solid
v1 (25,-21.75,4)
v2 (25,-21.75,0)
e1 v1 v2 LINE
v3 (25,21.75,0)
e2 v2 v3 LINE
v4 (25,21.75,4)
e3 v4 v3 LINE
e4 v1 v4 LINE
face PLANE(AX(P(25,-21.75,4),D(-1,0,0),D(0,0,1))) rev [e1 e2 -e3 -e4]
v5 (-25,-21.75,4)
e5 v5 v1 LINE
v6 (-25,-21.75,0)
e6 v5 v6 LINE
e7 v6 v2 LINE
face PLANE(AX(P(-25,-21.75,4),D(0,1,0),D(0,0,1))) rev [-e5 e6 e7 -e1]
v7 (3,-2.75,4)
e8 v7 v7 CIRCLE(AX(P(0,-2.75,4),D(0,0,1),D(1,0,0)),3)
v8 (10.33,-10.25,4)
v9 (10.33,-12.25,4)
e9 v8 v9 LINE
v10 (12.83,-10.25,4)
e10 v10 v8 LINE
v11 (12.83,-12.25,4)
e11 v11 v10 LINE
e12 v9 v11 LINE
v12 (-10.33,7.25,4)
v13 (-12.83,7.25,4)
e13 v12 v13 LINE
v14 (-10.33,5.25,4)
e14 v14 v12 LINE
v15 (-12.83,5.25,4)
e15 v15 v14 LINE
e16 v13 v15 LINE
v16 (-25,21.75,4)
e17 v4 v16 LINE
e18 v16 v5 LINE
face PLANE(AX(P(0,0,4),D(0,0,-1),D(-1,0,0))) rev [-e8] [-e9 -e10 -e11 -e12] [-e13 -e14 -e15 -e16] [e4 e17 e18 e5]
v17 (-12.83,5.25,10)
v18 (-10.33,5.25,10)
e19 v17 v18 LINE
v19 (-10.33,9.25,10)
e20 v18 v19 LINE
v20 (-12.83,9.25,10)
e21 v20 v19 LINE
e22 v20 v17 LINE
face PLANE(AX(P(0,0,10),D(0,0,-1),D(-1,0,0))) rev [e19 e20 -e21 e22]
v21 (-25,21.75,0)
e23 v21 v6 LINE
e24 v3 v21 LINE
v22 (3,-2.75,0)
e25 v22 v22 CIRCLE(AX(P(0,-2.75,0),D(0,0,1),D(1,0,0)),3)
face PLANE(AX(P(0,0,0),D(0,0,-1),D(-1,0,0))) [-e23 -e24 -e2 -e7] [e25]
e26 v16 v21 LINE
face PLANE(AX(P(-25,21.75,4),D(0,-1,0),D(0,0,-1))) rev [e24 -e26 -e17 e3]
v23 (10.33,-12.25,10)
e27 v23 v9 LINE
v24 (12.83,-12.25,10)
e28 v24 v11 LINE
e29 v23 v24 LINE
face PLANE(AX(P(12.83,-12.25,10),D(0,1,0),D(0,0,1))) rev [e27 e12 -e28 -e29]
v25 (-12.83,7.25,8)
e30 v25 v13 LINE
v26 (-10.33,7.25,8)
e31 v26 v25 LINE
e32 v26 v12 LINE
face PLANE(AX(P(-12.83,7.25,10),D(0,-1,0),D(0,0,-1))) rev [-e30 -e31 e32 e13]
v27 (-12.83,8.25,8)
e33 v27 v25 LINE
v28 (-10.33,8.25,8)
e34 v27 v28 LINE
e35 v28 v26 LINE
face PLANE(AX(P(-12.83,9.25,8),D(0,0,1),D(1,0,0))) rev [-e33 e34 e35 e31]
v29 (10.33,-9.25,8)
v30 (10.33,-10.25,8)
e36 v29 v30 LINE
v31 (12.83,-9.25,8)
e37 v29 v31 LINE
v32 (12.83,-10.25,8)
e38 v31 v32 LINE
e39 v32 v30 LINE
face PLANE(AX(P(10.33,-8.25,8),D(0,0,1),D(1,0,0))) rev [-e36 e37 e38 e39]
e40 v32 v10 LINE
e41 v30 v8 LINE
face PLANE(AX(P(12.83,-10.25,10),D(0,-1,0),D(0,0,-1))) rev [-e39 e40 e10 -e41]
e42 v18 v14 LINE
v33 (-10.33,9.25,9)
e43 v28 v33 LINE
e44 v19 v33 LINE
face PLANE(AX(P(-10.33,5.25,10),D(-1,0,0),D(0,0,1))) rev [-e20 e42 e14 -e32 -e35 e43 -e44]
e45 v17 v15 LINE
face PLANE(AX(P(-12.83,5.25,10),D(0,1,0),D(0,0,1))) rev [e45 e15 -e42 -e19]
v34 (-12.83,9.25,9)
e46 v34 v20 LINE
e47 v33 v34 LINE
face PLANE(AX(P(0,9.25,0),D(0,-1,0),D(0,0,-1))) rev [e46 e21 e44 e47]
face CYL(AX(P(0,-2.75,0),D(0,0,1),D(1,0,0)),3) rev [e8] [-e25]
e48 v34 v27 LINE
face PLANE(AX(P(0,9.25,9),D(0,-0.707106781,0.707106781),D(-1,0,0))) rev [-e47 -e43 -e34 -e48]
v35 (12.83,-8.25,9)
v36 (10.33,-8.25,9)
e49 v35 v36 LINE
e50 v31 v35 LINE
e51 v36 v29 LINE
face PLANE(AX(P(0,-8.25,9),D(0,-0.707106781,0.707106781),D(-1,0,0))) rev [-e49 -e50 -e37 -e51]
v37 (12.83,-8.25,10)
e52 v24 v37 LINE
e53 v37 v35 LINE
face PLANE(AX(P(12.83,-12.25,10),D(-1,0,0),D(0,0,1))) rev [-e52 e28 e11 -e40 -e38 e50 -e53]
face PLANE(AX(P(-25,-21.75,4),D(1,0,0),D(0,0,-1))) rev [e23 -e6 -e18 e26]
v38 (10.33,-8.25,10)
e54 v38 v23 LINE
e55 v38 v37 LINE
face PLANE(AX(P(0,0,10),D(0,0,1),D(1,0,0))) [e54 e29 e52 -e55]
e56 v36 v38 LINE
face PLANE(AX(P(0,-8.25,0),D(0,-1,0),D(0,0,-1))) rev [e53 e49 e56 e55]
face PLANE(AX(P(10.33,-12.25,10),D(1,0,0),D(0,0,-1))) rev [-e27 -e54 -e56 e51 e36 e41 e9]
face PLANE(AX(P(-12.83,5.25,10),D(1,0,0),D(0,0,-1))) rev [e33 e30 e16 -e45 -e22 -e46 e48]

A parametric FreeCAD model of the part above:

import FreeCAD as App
import Part
import Sketcher
Q = App.Units.Quantity


def edges_at(feature, points):
    """Names of the edges that pass closest to the given points."""
    edges = feature.Shape.Edges
    near = lambda p: min(range(len(edges)), key=lambda i: edges[i].distToShape(Part.Vertex(*p))[0])
    return sorted({f"Edge{near(p) + 1}" for p in points})


def add_polygon(sketch, points):
    """Adds a closed chain of lines whose ends are joined by coincident constraints."""
    first, n = sketch.GeometryCount, len(points)
    for a, b in zip(points, points[1:] + points[:1]):
        sketch.addGeometry(Part.LineSegment(App.Vector(*a, 0), App.Vector(*b, 0)), False)
    for i in range(n):
        sketch.addConstraint(Sketcher.Constraint("Coincident", first + i, 2, first + (i + 1) % n, 1))

doc = App.newDocument("Part")
body = doc.addObject("PartDesign::Body", "Body")

# Sketch on XY plane
sketch1 = body.newObject("Sketcher::SketchObject", "Sketch")
sketch1.AttachmentSupport = (doc.getObject("XY_Plane"), [""])
sketch1.MapMode = "FlatFace"
add_polygon(sketch1, [(-25, 22), (-25, -22), (25, -22), (25, 22)])  # lines 0-3
sketch1.addConstraint(Sketcher.Constraint("Vertical", 0))
sketch1.addConstraint(Sketcher.Constraint("Horizontal", 1))
sketch1.addConstraint(Sketcher.Constraint("Vertical", 2))
sketch1.addConstraint(Sketcher.Constraint("Horizontal", 3))
sketch1.addConstraint(Sketcher.Constraint("Symmetric", 0, 2, 2, 2, -1, 1))
sketch1.addConstraint(Sketcher.Constraint("DistanceX", 1, 1, 1, 2, Q("50 mm")))
sketch1.addConstraint(Sketcher.Constraint("DistanceY", 0, 2, 0, 1, Q("43.5 mm")))
pad1 = body.newObject("PartDesign::Pad", "Pad")
pad1.Profile = sketch1
pad1.Length = 4

# Sketch on XY plane
sketch2 = body.newObject("Sketcher::SketchObject", "Sketch001")
sketch2.AttachmentSupport = (doc.getObject("XY_Plane"), [""])
sketch2.MapMode = "FlatFace"
sketch2.AttachmentOffset = App.Placement(App.Vector(0, 0, 4), App.Rotation())
sketch2.addGeometry(Part.Circle(App.Vector(0, -2.8, 0), App.Vector(0, 0, 1), 3), False)
sketch2.addConstraint(Sketcher.Constraint("PointOnObject", 0, 3, -2))
sketch2.addConstraint(Sketcher.Constraint("Diameter", 0, Q("6 mm")))
sketch2.addConstraint(Sketcher.Constraint("DistanceY", 0, 3, -1, 1, Q("2.75 mm")))
pocket1 = body.newObject("PartDesign::Pocket", "Pocket")
pocket1.Profile = sketch2
pocket1.Length = 4

# Sketch on XY plane
sketch3 = body.newObject("Sketcher::SketchObject", "Sketch002")
sketch3.AttachmentSupport = (doc.getObject("XY_Plane"), [""])
sketch3.MapMode = "FlatFace"
sketch3.AttachmentOffset = App.Placement(App.Vector(0, 0, 4), App.Rotation())
add_polygon(sketch3, [(-12.8, 7.2), (-12.8, 5.2), (-10.3, 5.2), (-10.3, 7.2)])  # lines 0-3
add_polygon(sketch3, [(10.3, -10.2), (10.3, -12.2), (12.8, -12.2), (12.8, -10.2)])  # lines 4-7
sketch3.addConstraint(Sketcher.Constraint("Vertical", 0))
sketch3.addConstraint(Sketcher.Constraint("Horizontal", 1))
sketch3.addConstraint(Sketcher.Constraint("Vertical", 2))
sketch3.addConstraint(Sketcher.Constraint("Horizontal", 3))
sketch3.addConstraint(Sketcher.Constraint("Vertical", 4))
sketch3.addConstraint(Sketcher.Constraint("Horizontal", 5))
sketch3.addConstraint(Sketcher.Constraint("Vertical", 6))
sketch3.addConstraint(Sketcher.Constraint("Horizontal", 7))
sketch3.addConstraint(Sketcher.Constraint("Equal", 3, 5))
sketch3.addConstraint(Sketcher.Constraint("Equal", 2, 4))
sketch3.addConstraint(Sketcher.Constraint("DistanceY", 0, 2, 0, 1, Q("2 mm")))
sketch3.addConstraint(Sketcher.Constraint("DistanceX", 1, 1, 1, 2, Q("2.5 mm")))
sketch3.addConstraint(Sketcher.Constraint("DistanceY", 4, 2, 1, 2, Q("17.5 mm")))
sketch3.addConstraint(Sketcher.Constraint("DistanceX", 0, 2, -1, 1, Q("12.83 mm")))
sketch3.addConstraint(Sketcher.Constraint("DistanceY", -1, 1, 0, 2, Q("5.25 mm")))
sketch3.addConstraint(Sketcher.Constraint("DistanceX", -1, 1, 4, 2, Q("10.33 mm")))
pad2 = body.newObject("PartDesign::Pad", "Pad001")
pad2.Profile = sketch3
pad2.Length = 6

# Sketch on XZ plane
sketch4 = body.newObject("Sketcher::SketchObject", "Sketch003")
sketch4.AttachmentSupport = (doc.getObject("XZ_Plane"), [""])
sketch4.MapMode = "FlatFace"
sketch4.AttachmentOffset = App.Placement(App.Vector(0, 0, -7.25), App.Rotation())
add_polygon(sketch4, [(-12.8, 8), (-12.8, 10), (-10.3, 10), (-10.3, 8)])  # lines 0-3
sketch4.addConstraint(Sketcher.Constraint("Vertical", 0))
sketch4.addConstraint(Sketcher.Constraint("Horizontal", 1))
sketch4.addConstraint(Sketcher.Constraint("Vertical", 2))
sketch4.addConstraint(Sketcher.Constraint("Horizontal", 3))
sketch4.addConstraint(Sketcher.Constraint("DistanceY", 0, 1, 0, 2, Q("2 mm")))
sketch4.addConstraint(Sketcher.Constraint("DistanceX", 1, 1, 1, 2, Q("2.5 mm")))
sketch4.addConstraint(Sketcher.Constraint("DistanceY", -1, 1, 0, 2, Q("10 mm")))
sketch4.addConstraint(Sketcher.Constraint("DistanceX", 0, 2, -1, 1, Q("12.83 mm")))
pad3 = body.newObject("PartDesign::Pad", "Pad002")
pad3.Profile = sketch4
pad3.Length = 2
pad3.Reversed = True

# Sketch on XZ plane
sketch5 = body.newObject("Sketcher::SketchObject", "Sketch004")
sketch5.AttachmentSupport = (doc.getObject("XZ_Plane"), [""])
sketch5.MapMode = "FlatFace"
sketch5.AttachmentOffset = App.Placement(App.Vector(0, 0, 10.25), App.Rotation())
add_polygon(sketch5, [(10.3, 8), (10.3, 10), (12.8, 10), (12.8, 8)])  # lines 0-3
sketch5.addConstraint(Sketcher.Constraint("Vertical", 0))
sketch5.addConstraint(Sketcher.Constraint("Horizontal", 1))
sketch5.addConstraint(Sketcher.Constraint("Vertical", 2))
sketch5.addConstraint(Sketcher.Constraint("Horizontal", 3))
sketch5.addConstraint(Sketcher.Constraint("DistanceY", 0, 1, 0, 2, Q("2 mm")))
sketch5.addConstraint(Sketcher.Constraint("DistanceX", 1, 1, 1, 2, Q("2.5 mm")))
sketch5.addConstraint(Sketcher.Constraint("DistanceY", -1, 1, 0, 2, Q("10 mm")))
sketch5.addConstraint(Sketcher.Constraint("DistanceX", -1, 1, 0, 2, Q("10.33 mm")))
pad4 = body.newObject("PartDesign::Pad", "Pad003")
pad4.Profile = sketch5
pad4.Length = 2
pad4.Reversed = True
doc.recompute()

chamfer = body.newObject("PartDesign::Chamfer", "Chamfer")
chamfer.Base = (pad4, edges_at(pad4, [(-11.58, 9.25, 8), (11.58, -8.25, 8)]))
chamfer.Size = 1

doc.recompute()
